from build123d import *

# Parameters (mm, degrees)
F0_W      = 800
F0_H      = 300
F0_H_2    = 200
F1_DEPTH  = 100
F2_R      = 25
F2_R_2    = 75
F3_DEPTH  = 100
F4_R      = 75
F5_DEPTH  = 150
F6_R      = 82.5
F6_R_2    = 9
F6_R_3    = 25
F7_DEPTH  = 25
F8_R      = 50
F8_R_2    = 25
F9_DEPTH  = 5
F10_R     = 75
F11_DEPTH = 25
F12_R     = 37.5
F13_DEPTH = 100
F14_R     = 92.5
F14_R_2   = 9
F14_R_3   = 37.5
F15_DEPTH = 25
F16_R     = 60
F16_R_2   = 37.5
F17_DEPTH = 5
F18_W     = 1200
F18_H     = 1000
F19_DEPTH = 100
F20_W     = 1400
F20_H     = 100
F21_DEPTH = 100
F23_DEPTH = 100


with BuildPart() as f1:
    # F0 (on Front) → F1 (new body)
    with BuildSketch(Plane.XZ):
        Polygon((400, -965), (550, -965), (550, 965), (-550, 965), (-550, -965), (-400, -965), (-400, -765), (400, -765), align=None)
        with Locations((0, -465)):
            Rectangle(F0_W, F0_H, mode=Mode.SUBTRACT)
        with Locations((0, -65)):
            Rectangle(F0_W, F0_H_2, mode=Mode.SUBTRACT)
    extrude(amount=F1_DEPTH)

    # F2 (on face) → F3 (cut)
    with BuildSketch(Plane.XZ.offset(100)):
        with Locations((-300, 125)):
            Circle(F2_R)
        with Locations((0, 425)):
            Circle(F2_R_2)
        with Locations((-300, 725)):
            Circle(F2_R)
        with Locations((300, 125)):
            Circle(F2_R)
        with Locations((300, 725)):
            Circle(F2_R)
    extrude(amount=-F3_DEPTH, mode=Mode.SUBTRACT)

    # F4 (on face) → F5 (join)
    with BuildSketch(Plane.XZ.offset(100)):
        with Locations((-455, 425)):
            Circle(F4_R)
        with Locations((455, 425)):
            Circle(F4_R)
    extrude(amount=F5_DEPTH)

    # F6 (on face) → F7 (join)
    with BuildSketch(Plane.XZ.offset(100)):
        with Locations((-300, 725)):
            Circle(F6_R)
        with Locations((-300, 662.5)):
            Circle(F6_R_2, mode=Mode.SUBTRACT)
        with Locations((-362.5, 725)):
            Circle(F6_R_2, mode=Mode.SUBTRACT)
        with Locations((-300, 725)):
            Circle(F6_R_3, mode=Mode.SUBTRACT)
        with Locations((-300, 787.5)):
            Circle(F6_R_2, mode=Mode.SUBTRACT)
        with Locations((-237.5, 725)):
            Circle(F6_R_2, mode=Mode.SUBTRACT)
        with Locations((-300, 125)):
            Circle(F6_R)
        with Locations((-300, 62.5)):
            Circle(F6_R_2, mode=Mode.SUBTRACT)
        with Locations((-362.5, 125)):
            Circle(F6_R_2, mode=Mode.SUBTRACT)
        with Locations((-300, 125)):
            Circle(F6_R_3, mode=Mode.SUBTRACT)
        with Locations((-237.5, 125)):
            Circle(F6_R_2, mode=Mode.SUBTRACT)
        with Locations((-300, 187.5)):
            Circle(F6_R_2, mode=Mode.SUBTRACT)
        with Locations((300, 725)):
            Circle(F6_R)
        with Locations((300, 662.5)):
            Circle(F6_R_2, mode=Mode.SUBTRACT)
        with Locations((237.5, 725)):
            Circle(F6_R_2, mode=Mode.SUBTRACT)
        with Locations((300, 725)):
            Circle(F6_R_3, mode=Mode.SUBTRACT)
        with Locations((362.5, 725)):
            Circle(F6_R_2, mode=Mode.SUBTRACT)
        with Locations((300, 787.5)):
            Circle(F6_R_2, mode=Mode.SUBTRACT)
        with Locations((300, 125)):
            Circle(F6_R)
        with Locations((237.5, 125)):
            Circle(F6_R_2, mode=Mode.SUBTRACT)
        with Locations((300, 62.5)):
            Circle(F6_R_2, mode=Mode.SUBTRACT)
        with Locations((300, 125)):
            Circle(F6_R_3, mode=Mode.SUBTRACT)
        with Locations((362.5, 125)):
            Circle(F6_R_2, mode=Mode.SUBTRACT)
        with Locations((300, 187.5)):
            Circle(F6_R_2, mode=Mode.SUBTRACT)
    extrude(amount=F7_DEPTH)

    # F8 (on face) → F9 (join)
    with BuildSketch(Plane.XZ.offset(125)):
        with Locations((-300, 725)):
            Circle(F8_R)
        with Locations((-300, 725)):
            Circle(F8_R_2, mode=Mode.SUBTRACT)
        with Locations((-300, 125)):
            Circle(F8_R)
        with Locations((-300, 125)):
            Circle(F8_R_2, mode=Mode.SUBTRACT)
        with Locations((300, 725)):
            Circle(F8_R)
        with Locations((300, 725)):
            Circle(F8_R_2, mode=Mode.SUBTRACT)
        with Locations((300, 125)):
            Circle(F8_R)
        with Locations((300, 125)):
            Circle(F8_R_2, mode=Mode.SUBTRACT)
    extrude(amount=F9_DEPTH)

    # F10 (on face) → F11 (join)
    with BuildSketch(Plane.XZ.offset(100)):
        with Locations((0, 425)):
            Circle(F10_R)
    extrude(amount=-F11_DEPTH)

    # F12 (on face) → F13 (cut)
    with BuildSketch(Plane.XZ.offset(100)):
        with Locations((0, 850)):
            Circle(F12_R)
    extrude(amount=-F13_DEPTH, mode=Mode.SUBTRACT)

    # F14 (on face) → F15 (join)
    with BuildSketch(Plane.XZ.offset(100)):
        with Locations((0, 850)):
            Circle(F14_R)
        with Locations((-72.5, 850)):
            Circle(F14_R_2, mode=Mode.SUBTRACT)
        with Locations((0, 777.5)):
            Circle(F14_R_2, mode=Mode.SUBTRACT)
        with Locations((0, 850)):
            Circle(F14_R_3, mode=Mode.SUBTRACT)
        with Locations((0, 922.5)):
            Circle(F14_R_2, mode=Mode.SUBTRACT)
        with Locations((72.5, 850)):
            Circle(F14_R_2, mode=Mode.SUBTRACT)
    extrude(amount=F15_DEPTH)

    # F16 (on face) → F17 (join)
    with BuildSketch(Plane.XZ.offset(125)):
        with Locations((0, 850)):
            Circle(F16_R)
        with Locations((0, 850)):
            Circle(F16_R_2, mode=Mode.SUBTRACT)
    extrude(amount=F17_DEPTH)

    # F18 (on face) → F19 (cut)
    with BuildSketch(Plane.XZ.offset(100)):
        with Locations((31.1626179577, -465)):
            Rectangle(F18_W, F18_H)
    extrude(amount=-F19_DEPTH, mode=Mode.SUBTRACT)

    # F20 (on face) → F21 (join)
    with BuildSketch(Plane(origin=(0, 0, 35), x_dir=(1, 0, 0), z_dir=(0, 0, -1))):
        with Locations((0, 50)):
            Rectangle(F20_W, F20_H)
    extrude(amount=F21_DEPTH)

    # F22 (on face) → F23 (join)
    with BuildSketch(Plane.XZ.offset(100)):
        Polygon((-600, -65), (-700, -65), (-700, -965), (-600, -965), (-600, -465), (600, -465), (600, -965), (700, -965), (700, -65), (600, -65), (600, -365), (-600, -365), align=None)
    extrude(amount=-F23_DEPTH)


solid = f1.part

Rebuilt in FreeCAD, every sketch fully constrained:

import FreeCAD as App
import Part
import Sketcher
Q = App.Units.Quantity


def add_polygon(sketch, points):
    """Adds a closed chain of lines whose ends are joined by coincident constraints."""
    first, n = sketch.GeometryCount, len(points)
    for a, b in zip(points, points[1:] + points[:1]):
        sketch.addGeometry(Part.LineSegment(App.Vector(*a, 0), App.Vector(*b, 0)), False)
    for i in range(n):
        sketch.addConstraint(Sketcher.Constraint("Coincident", first + i, 2, first + (i + 1) % n, 1))

doc = App.newDocument("Part")
body = doc.addObject("PartDesign::Body", "Body")

# Sketch on XZ plane
sketch1 = body.newObject("Sketcher::SketchObject", "Sketch")
sketch1.AttachmentSupport = (doc.getObject("XZ_Plane"), [""])
sketch1.MapMode = "FlatFace"
add_polygon(sketch1, [(400, -965), (550, -965), (550, 965), (-550, 965), (-550, -965), (-400, -965), (-400, -765), (400, -765)])  # lines 0-7
add_polygon(sketch1, [(400, -615), (-400, -615), (-400, -315), (400, -315)])  # lines 8-11
add_polygon(sketch1, [(400, -165), (-400, -165), (-400, 35), (400, 35)])  # lines 12-15
sketch1.addConstraint([
    Sketcher.Constraint("Horizontal", 0),
    Sketcher.Constraint("Vertical", 1),
    Sketcher.Constraint("Horizontal", 2),
    Sketcher.Constraint("Vertical", 3),
    Sketcher.Constraint("Horizontal", 4),
    Sketcher.Constraint("Vertical", 5),
    Sketcher.Constraint("Horizontal", 6),
    Sketcher.Constraint("Vertical", 7),
    Sketcher.Constraint("Horizontal", 8),
    Sketcher.Constraint("Vertical", 9),
    Sketcher.Constraint("Horizontal", 10),
    Sketcher.Constraint("Vertical", 11),
    Sketcher.Constraint("Horizontal", 12),
    Sketcher.Constraint("Vertical", 13),
    Sketcher.Constraint("Horizontal", 14),
    Sketcher.Constraint("Vertical", 15),
    Sketcher.Constraint("Symmetric", 0, 2, 2, 2, -1, 1),
    Sketcher.Constraint("Symmetric", 4, 2, 7, 2, -2),
    Sketcher.Constraint("Vertical", 5, 2, 8, 2),
    Sketcher.Constraint("Vertical", 7, 2, 10, 2),
    Sketcher.Constraint("Vertical", 9, 2, 12, 2),
    Sketcher.Constraint("Vertical", 11, 2, 14, 2),
    Sketcher.Constraint("Equal", 7, 13),
    Sketcher.Constraint("DistanceX", 0, 1, 0, 2, Q("150 mm")),
    Sketcher.Constraint("DistanceX", 2, 2, 2, 1, Q("1100 mm")),
    Sketcher.Constraint("DistanceY", 1, 1, 1, 2, Q("1930 mm")),
    Sketcher.Constraint("DistanceY", 5, 1, 5, 2, Q("200 mm")),
    Sketcher.Constraint("DistanceY", 9, 1, 9, 2, Q("300 mm")),
    Sketcher.Constraint("DistanceY", 8, 2, -1, 1, Q("615 mm")),
    Sketcher.Constraint("DistanceY", 12, 2, -1, 1, Q("165 mm")),
])
pad1 = body.newObject("PartDesign::Pad", "Pad")
pad1.Profile = sketch1
pad1.Length = 100

# Sketch on XZ plane
sketch2 = body.newObject("Sketcher::SketchObject", "Sketch001")
sketch2.AttachmentSupport = (doc.getObject("XZ_Plane"), [""])
sketch2.MapMode = "FlatFace"
sketch2.AttachmentOffset = App.Placement(App.Vector(0, 0, 100), App.Rotation())
sketch2.addGeometry([
    Part.Circle(App.Vector(-300, 125, 0), App.Vector(0, 0, 1), 25),  # 0
    Part.Circle(App.Vector(0, 425, 0), App.Vector(0, 0, 1), 75),  # 1
    Part.Circle(App.Vector(-300, 725, 0), App.Vector(0, 0, 1), 25),  # 2
    Part.Circle(App.Vector(300, 125, 0), App.Vector(0, 0, 1), 25),  # 3
    Part.Circle(App.Vector(300, 725, 0), App.Vector(0, 0, 1), 25),  # 4
], False)
sketch2.addConstraint([
    Sketcher.Constraint("Equal", 0, 2),
    Sketcher.Constraint("Equal", 2, 3),
    Sketcher.Constraint("Equal", 3, 4),
    Sketcher.Constraint("Symmetric", 0, 3, 3, 3, -2),
    Sketcher.Constraint("Symmetric", 2, 3, 4, 3, -2),
    Sketcher.Constraint("PointOnObject", 1, 3, -2),
    Sketcher.Constraint("Vertical", 0, 3, 2, 3),
    Sketcher.Constraint("Diameter", 0, Q("50 mm")),
    Sketcher.Constraint("Diameter", 1, Q("150 mm")),
    Sketcher.Constraint("DistanceX", 0, 3, -1, 1, Q("300 mm")),
    Sketcher.Constraint("DistanceY", -1, 1, 0, 3, Q("125 mm")),
    Sketcher.Constraint("DistanceY", -1, 1, 1, 3, Q("425 mm")),
    Sketcher.Constraint("DistanceY", -1, 1, 2, 3, Q("725 mm")),
])
pocket1 = body.newObject("PartDesign::Pocket", "Pocket")
pocket1.Profile = sketch2
pocket1.Length = 100

# Sketch on XZ plane
sketch3 = body.newObject("Sketcher::SketchObject", "Sketch002")
sketch3.AttachmentSupport = (doc.getObject("XZ_Plane"), [""])
sketch3.MapMode = "FlatFace"
sketch3.AttachmentOffset = App.Placement(App.Vector(0, 0, 100), App.Rotation())
sketch3.addGeometry([
    Part.Circle(App.Vector(-455, 425, 0), App.Vector(0, 0, 1), 75),
    Part.Circle(App.Vector(455, 425, 0), App.Vector(0, 0, 1), 75),
], False)
sketch3.addConstraint([
    Sketcher.Constraint("Equal", 0, 1),
    Sketcher.Constraint("Symmetric", 0, 3, 1, 3, -2),
    Sketcher.Constraint("Diameter", 0, Q("150 mm")),
    Sketcher.Constraint("DistanceX", 0, 3, -1, 1, Q("455 mm")),
    Sketcher.Constraint("DistanceY", -1, 1, 0, 3, Q("425 mm")),
])
pad2 = body.newObject("PartDesign::Pad", "Pad001")
pad2.Profile = sketch3
pad2.Length = 150

# Sketch on XZ plane
sketch4 = body.newObject("Sketcher::SketchObject", "Sketch003")
sketch4.AttachmentSupport = (doc.getObject("XZ_Plane"), [""])
sketch4.MapMode = "FlatFace"
sketch4.AttachmentOffset = App.Placement(App.Vector(0, 0, 100), App.Rotation())
sketch4.addGeometry([
    Part.Circle(App.Vector(-300, 725, 0), App.Vector(0, 0, 1), 82.5),  # 0
    Part.Circle(App.Vector(-300, 662.5, 0), App.Vector(0, 0, 1), 9),  # 1
    Part.Circle(App.Vector(-362.5, 725, 0), App.Vector(0, 0, 1), 9),  # 2
    Part.Circle(App.Vector(-300, 725, 0), App.Vector(0, 0, 1), 25),  # 3
    Part.Circle(App.Vector(-237.5, 725, 0), App.Vector(0, 0, 1), 9),  # 4
    Part.Circle(App.Vector(-300, 787.5, 0), App.Vector(0, 0, 1), 9),  # 5
    Part.Circle(App.Vector(-300, 125, 0), App.Vector(0, 0, 1), 82.5),  # 6
    Part.Circle(App.Vector(-300, 62.5, 0), App.Vector(0, 0, 1), 9),  # 7
    Part.Circle(App.Vector(-362.5, 125, 0), App.Vector(0, 0, 1), 9),  # 8
    Part.Circle(App.Vector(-300, 125, 0), App.Vector(0, 0, 1), 25),  # 9
    Part.Circle(App.Vector(-237.5, 125, 0), App.Vector(0, 0, 1), 9),  # 10
    Part.Circle(App.Vector(-300, 187.5, 0), App.Vector(0, 0, 1), 9),  # 11
    Part.Circle(App.Vector(300, 725, 0), App.Vector(0, 0, 1), 82.5),  # 12
    Part.Circle(App.Vector(300, 662.5, 0), App.Vector(0, 0, 1), 9),  # 13
    Part.Circle(App.Vector(237.5, 725, 0), App.Vector(0, 0, 1), 9),  # 14
    Part.Circle(App.Vector(300, 725, 0), App.Vector(0, 0, 1), 25),  # 15
    Part.Circle(App.Vector(362.5, 725, 0), App.Vector(0, 0, 1), 9),  # 16
    Part.Circle(App.Vector(300, 787.5, 0), App.Vector(0, 0, 1), 9),  # 17
    Part.Circle(App.Vector(300, 125, 0), App.Vector(0, 0, 1), 82.5),  # 18
    Part.Circle(App.Vector(300, 62.5, 0), App.Vector(0, 0, 1), 9),  # 19
    Part.Circle(App.Vector(237.5, 125, 0), App.Vector(0, 0, 1), 9),  # 20
    Part.Circle(App.Vector(300, 125, 0), App.Vector(0, 0, 1), 25),  # 21
    Part.Circle(App.Vector(362.5, 125, 0), App.Vector(0, 0, 1), 9),  # 22
    Part.Circle(App.Vector(300, 187.5, 0), App.Vector(0, 0, 1), 9),  # 23
], False)
sketch4.addConstraint([
    Sketcher.Constraint("Coincident", 3, 3, 0, 3),
    Sketcher.Constraint("Coincident", 9, 3, 6, 3),
    Sketcher.Constraint("Coincident", 15, 3, 12, 3),
    Sketcher.Constraint("Coincident", 21, 3, 18, 3),
    Sketcher.Constraint("Equal", 1, 2),
    Sketcher.Constraint("Equal", 2, 4),
    Sketcher.Constraint("Equal", 4, 5),
    Sketcher.Constraint("Equal", 0, 6),
    Sketcher.Constraint("Equal", 5, 7),
    Sketcher.Constraint("Equal", 7, 8),
    Sketcher.Constraint("Equal", 3, 9),
    Sketcher.Constraint("Equal", 8, 10),
    Sketcher.Constraint("Equal", 10, 11),
    Sketcher.Constraint("Equal", 6, 12),
    Sketcher.Constraint("Equal", 11, 13),
    Sketcher.Constraint("Equal", 13, 14),
    Sketcher.Constraint("Equal", 9, 15),
    Sketcher.Constraint("Equal", 14, 16),
    Sketcher.Constraint("Equal", 16, 17),
    Sketcher.Constraint("Equal", 12, 18),
    Sketcher.Constraint("Equal", 17, 19),
    Sketcher.Constraint("Equal", 19, 20),
    Sketcher.Constraint("Equal", 15, 21),
    Sketcher.Constraint("Equal", 20, 22),
    Sketcher.Constraint("Equal", 22, 23),
    Sketcher.Constraint("Symmetric", 0, 3, 12, 3, -2),
    Sketcher.Constraint("Symmetric", 1, 3, 13, 3, -2),
    Sketcher.Constraint("Symmetric", 4, 3, 14, 3, -2),
    Sketcher.Constraint("Symmetric", 2, 3, 16, 3, -2),
    Sketcher.Constraint("Symmetric", 5, 3, 17, 3, -2),
    Sketcher.Constraint("Symmetric", 6, 3, 18, 3, -2),
    Sketcher.Constraint("Symmetric", 7, 3, 19, 3, -2),
    Sketcher.Constraint("Symmetric", 10, 3, 20, 3, -2),
    Sketcher.Constraint("Symmetric", 8, 3, 22, 3, -2),
    Sketcher.Constraint("Symmetric", 11, 3, 23, 3, -2),
    Sketcher.Constraint("Horizontal", 0, 3, 2, 3),
    Sketcher.Constraint("Horizontal", 3, 3, 4, 3),
    Sketcher.Constraint("Horizontal", 6, 3, 8, 3),
    Sketcher.Constraint("Horizontal", 9, 3, 10, 3),
    Sketcher.Constraint("Vertical", 0, 3, 1, 3),
    Sketcher.Constraint("Vertical", 3, 3, 5, 3),
    Sketcher.Constraint("Vertical", 5, 3, 6, 3),
    Sketcher.Constraint("Vertical", 6, 3, 7, 3),
    Sketcher.Constraint("Vertical", 2, 3, 8, 3),
    Sketcher.Constraint("Vertical", 4, 3, 10, 3),
    Sketcher.Constraint("Vertical", 9, 3, 11, 3),
    Sketcher.Constraint("Diameter", 0, Q("165 mm")),
    Sketcher.Constraint("Diameter", 1, Q("18 mm")),
    Sketcher.Constraint("Diameter", 3, Q("50 mm")),
    Sketcher.Constraint("DistanceX", 0, 3, -1, 1, Q("300 mm")),
    Sketcher.Constraint("DistanceY", -1, 1, 0, 3, Q("725 mm")),
    Sketcher.Constraint("DistanceY", -1, 1, 6, 3, Q("125 mm")),
    Sketcher.Constraint("DistanceX", 2, 3, 4, 3, Q("125 mm")),
    Sketcher.Constraint("DistanceY", 1, 3, 5, 3, Q("125 mm")),
    Sketcher.Constraint("DistanceY", 7, 3, 1, 3, Q("600 mm")),
    Sketcher.Constraint("DistanceY", 7, 3, 11, 3, Q("125 mm")),
    Sketcher.Constraint("DistanceX", 4, 3, 14, 3, Q("475 mm")),
    Sketcher.Constraint("DistanceY", -1, 1, 1, 3, Q("662.5 mm")),
])
pad3 = body.newObject("PartDesign::Pad", "Pad002")
pad3.Profile = sketch4
pad3.Length = 25

# Sketch on XZ plane
sketch5 = body.newObject("Sketcher::SketchObject", "Sketch004")
sketch5.AttachmentSupport = (doc.getObject("XZ_Plane"), [""])
sketch5.MapMode = "FlatFace"
sketch5.AttachmentOffset = App.Placement(App.Vector(0, 0, 125), App.Rotation())
sketch5.addGeometry([
    Part.Circle(App.Vector(-300, 725, 0), App.Vector(0, 0, 1), 50),  # 0
    Part.Circle(App.Vector(-300, 725, 0), App.Vector(0, 0, 1), 25),  # 1
    Part.Circle(App.Vector(-300, 125, 0), App.Vector(0, 0, 1), 50),  # 2
    Part.Circle(App.Vector(-300, 125, 0), App.Vector(0, 0, 1), 25),  # 3
    Part.Circle(App.Vector(300, 725, 0), App.Vector(0, 0, 1), 50),  # 4
    Part.Circle(App.Vector(300, 725, 0), App.Vector(0, 0, 1), 25),  # 5
    Part.Circle(App.Vector(300, 125, 0), App.Vector(0, 0, 1), 50),  # 6
    Part.Circle(App.Vector(300, 125, 0), App.Vector(0, 0, 1), 25),  # 7
], False)
sketch5.addConstraint([
    Sketcher.Constraint("Coincident", 1, 3, 0, 3),
    Sketcher.Constraint("Coincident", 3, 3, 2, 3),
    Sketcher.Constraint("Coincident", 5, 3, 4, 3),
    Sketcher.Constraint("Coincident", 7, 3, 6, 3),
    Sketcher.Constraint("Equal", 0, 2),
    Sketcher.Constraint("Equal", 1, 3),
    Sketcher.Constraint("Equal", 2, 4),
    Sketcher.Constraint("Equal", 3, 5),
    Sketcher.Constraint("Equal", 4, 6),
    Sketcher.Constraint("Equal", 5, 7),
    Sketcher.Constraint("Symmetric", 0, 3, 4, 3, -2),
    Sketcher.Constraint("Symmetric", 2, 3, 6, 3, -2),
    Sketcher.Constraint("Vertical", 1, 3, 2, 3),
    Sketcher.Constraint("Diameter", 0, Q("100 mm")),
    Sketcher.Constraint("Diameter", 1, Q("50 mm")),
    Sketcher.Constraint("DistanceX", 0, 3, -1, 1, Q("300 mm")),
    Sketcher.Constraint("DistanceY", -1, 1, 0, 3, Q("725 mm")),
    Sketcher.Constraint("DistanceY", -1, 1, 2, 3, Q("125 mm")),
])
pad4 = body.newObject("PartDesign::Pad", "Pad003")
pad4.Profile = sketch5
pad4.Length = 5

# Sketch on XZ plane
sketch6 = body.newObject("Sketcher::SketchObject", "Sketch005")
sketch6.AttachmentSupport = (doc.getObject("XZ_Plane"), [""])
sketch6.MapMode = "FlatFace"
sketch6.AttachmentOffset = App.Placement(App.Vector(0, 0, 100), App.Rotation())
sketch6.addGeometry(Part.Circle(App.Vector(0, 425, 0), App.Vector(0, 0, 1), 75), False)
sketch6.addConstraint([
    Sketcher.Constraint("PointOnObject", 0, 3, -2),
    Sketcher.Constraint("Diameter", 0, Q("150 mm")),
    Sketcher.Constraint("DistanceY", -1, 1, 0, 3, Q("425 mm")),
])
pad5 = body.newObject("PartDesign::Pad", "Pad004")
pad5.Profile = sketch6
pad5.Length = 25
pad5.Reversed = True

# Sketch on XZ plane
sketch7 = body.newObject("Sketcher::SketchObject", "Sketch006")
sketch7.AttachmentSupport = (doc.getObject("XZ_Plane"), [""])
sketch7.MapMode = "FlatFace"
sketch7.AttachmentOffset = App.Placement(App.Vector(0, 0, 100), App.Rotation())
sketch7.addGeometry(Part.Circle(App.Vector(0, 850, 0), App.Vector(0, 0, 1), 37.5), False)
sketch7.addConstraint([
    Sketcher.Constraint("PointOnObject", 0, 3, -2),
    Sketcher.Constraint("Diameter", 0, Q("75 mm")),
    Sketcher.Constraint("DistanceY", -1, 1, 0, 3, Q("850 mm")),
])
pocket2 = body.newObject("PartDesign::Pocket", "Pocket001")
pocket2.Profile = sketch7
pocket2.Length = 100

# Sketch on XZ plane
sketch8 = body.newObject("Sketcher::SketchObject", "Sketch007")
sketch8.AttachmentSupport = (doc.getObject("XZ_Plane"), [""])
sketch8.MapMode = "FlatFace"
sketch8.AttachmentOffset = App.Placement(App.Vector(0, 0, 100), App.Rotation())
sketch8.addGeometry([
    Part.Circle(App.Vector(0, 850, 0), App.Vector(0, 0, 1), 92.5),  # 0
    Part.Circle(App.Vector(0, 777.5, 0), App.Vector(0, 0, 1), 9),  # 1
    Part.Circle(App.Vector(-72.5, 850, 0), App.Vector(0, 0, 1), 9),  # 2
    Part.Circle(App.Vector(0, 850, 0), App.Vector(0, 0, 1), 37.5),  # 3
    Part.Circle(App.Vector(72.5, 850, 0), App.Vector(0, 0, 1), 9),  # 4
    Part.Circle(App.Vector(0, 922.5, 0), App.Vector(0, 0, 1), 9),  # 5
], False)
sketch8.addConstraint([
    Sketcher.Constraint("Coincident", 3, 3, 0, 3),
    Sketcher.Constraint("Equal", 1, 2),
    Sketcher.Constraint("Equal", 2, 4),
    Sketcher.Constraint("Equal", 4, 5),
    Sketcher.Constraint("Symmetric", 2, 3, 4, 3, -2),
    Sketcher.Constraint("PointOnObject", 0, 3, -2),
    Sketcher.Constraint("PointOnObject", 1, 3, -2),
    Sketcher.Constraint("PointOnObject", 5, 3, -2),
    Sketcher.Constraint("Horizontal", 0, 3, 2, 3),
    Sketcher.Constraint("Diameter", 0, Q("185 mm")),
    Sketcher.Constraint("Diameter", 1, Q("18 mm")),
    Sketcher.Constraint("Diameter", 3, Q("75 mm")),
    Sketcher.Constraint("DistanceY", -1, 1, 0, 3, Q("850 mm")),
    Sketcher.Constraint("DistanceX", 2, 3, 4, 3, Q("145 mm")),
    Sketcher.Constraint("DistanceY", 1, 3, 5, 3, Q("145 mm")),
    Sketcher.Constraint("DistanceY", -1, 1, 1, 3, Q("777.5 mm")),
])
pad6 = body.newObject("PartDesign::Pad", "Pad005")
pad6.Profile = sketch8
pad6.Length = 25

# Sketch on XZ plane
sketch9 = body.newObject("Sketcher::SketchObject", "Sketch008")
sketch9.AttachmentSupport = (doc.getObject("XZ_Plane"), [""])
sketch9.MapMode = "FlatFace"
sketch9.AttachmentOffset = App.Placement(App.Vector(0, 0, 125), App.Rotation())
sketch9.addGeometry([
    Part.Circle(App.Vector(0, 850, 0), App.Vector(0, 0, 1), 60),
    Part.Circle(App.Vector(0, 850, 0), App.Vector(0, 0, 1), 37.5),
], False)
sketch9.addConstraint([
    Sketcher.Constraint("Coincident", 1, 3, 0, 3),
    Sketcher.Constraint("PointOnObject", 0, 3, -2),
    Sketcher.Constraint("Diameter", 0, Q("120 mm")),
    Sketcher.Constraint("Diameter", 1, Q("75 mm")),
    Sketcher.Constraint("DistanceY", -1, 1, 0, 3, Q("850 mm")),
])
pad7 = body.newObject("PartDesign::Pad", "Pad006")
pad7.Profile = sketch9
pad7.Length = 5

# Sketch on XZ plane
sketch10 = body.newObject("Sketcher::SketchObject", "Sketch009")
sketch10.AttachmentSupport = (doc.getObject("XZ_Plane"), [""])
sketch10.MapMode = "FlatFace"
sketch10.AttachmentOffset = App.Placement(App.Vector(0, 0, 100), App.Rotation())
add_polygon(sketch10, [(-568.837382, 35), (-568.837382, -965), (631.162618, -965), (631.162618, 35)])  # lines 0-3
sketch10.addConstraint([
    Sketcher.Constraint("Vertical", 0),
    Sketcher.Constraint("Horizontal", 1),
    Sketcher.Constraint("Vertical", 2),
    Sketcher.Constraint("Horizontal", 3),
    Sketcher.Constraint("DistanceX", 1, 1, 1, 2, Q("1200 mm")),
    Sketcher.Constraint("DistanceY", 0, 2, 0, 1, Q("1000 mm")),
    Sketcher.Constraint("DistanceY", 0, 2, -1, 1, Q("965 mm")),
    Sketcher.Constraint("DistanceX", 0, 2, -1, 1, Q("568.837382 mm")),
])
pocket3 = body.newObject("PartDesign::Pocket", "Pocket002")
pocket3.Profile = sketch10
pocket3.Length = 100

# Sketch on XY plane
sketch11 = body.newObject("Sketcher::SketchObject", "Sketch010")
sketch11.AttachmentSupport = (doc.getObject("XY_Plane"), [""])
sketch11.MapMode = "FlatFace"
sketch11.AttachmentOffset = App.Placement(App.Vector(0, 0, 35), App.Rotation())
add_polygon(sketch11, [(-700, -100), (-700, 0), (700, 0), (700, -100)])  # lines 0-3
sketch11.addConstraint([
    Sketcher.Constraint("Vertical", 0),
    Sketcher.Constraint("Horizontal", 1),
    Sketcher.Constraint("Vertical", 2),
    Sketcher.Constraint("Horizontal", 3),
    Sketcher.Constraint("Symmetric", 0, 2, 1, 2, -1, 1),
    Sketcher.Constraint("DistanceX", 1, 1, 1, 2, Q("1400 mm")),
    Sketcher.Constraint("DistanceY", 0, 1, 0, 2, Q("100 mm")),
])
pad8 = body.newObject("PartDesign::Pad", "Pad007")
pad8.Profile = sketch11
pad8.Length = 100
pad8.Reversed = True

# Sketch on XZ plane
sketch12 = body.newObject("Sketcher::SketchObject", "Sketch011")
sketch12.AttachmentSupport = (doc.getObject("XZ_Plane"), [""])
sketch12.MapMode = "FlatFace"
sketch12.AttachmentOffset = App.Placement(App.Vector(0, 0, 100), App.Rotation())
add_polygon(sketch12, [(-600, -65), (-700, -65), (-700, -965), (-600, -965), (-600, -465), (600, -465), (600, -965), (700, -965), (700, -65), (600, -65), (600, -365), (-600, -365)])  # lines 0-11
sketch12.addConstraint([
    Sketcher.Constraint("Horizontal", 0),
    Sketcher.Constraint("Vertical", 1),
    Sketcher.Constraint("Horizontal", 2),
    Sketcher.Constraint("Vertical", 3),
    Sketcher.Constraint("Horizontal", 4),
    Sketcher.Constraint("Vertical", 5),
    Sketcher.Constraint("Horizontal", 6),
    Sketcher.Constraint("Vertical", 7),
    Sketcher.Constraint("Horizontal", 8),
    Sketcher.Constraint("Vertical", 9),
    Sketcher.Constraint("Horizontal", 10),
    Sketcher.Constraint("Vertical", 11),
    Sketcher.Constraint("Symmetric", 2, 2, 5, 2, -2),
    Sketcher.Constraint("Symmetric", 0, 2, 7, 2, -2),
    Sketcher.Constraint("Vertical", 5, 2, 8, 2),
    Sketcher.Constraint("Vertical", 3, 2, 10, 2),
    Sketcher.Constraint("DistanceX", 0, 2, 0, 1, Q("100 mm")),
    Sketcher.Constraint("DistanceX", 4, 1, 4, 2, Q("1200 mm")),
    Sketcher.Constraint("DistanceY", 1, 2, 1, 1, Q("900 mm")),
    Sketcher.Constraint("DistanceY", 3, 1, 3, 2, Q("500 mm")),
    Sketcher.Constraint("DistanceY", 9, 2, 9, 1, Q("300 mm")),
    Sketcher.Constraint("DistanceY", 0, 2, -1, 1, Q("65 mm")),
])
pad9 = body.newObject("PartDesign::Pad", "Pad008")
pad9.Profile = sketch12
pad9.Length = 100
pad9.Reversed = True

doc.recompute()
